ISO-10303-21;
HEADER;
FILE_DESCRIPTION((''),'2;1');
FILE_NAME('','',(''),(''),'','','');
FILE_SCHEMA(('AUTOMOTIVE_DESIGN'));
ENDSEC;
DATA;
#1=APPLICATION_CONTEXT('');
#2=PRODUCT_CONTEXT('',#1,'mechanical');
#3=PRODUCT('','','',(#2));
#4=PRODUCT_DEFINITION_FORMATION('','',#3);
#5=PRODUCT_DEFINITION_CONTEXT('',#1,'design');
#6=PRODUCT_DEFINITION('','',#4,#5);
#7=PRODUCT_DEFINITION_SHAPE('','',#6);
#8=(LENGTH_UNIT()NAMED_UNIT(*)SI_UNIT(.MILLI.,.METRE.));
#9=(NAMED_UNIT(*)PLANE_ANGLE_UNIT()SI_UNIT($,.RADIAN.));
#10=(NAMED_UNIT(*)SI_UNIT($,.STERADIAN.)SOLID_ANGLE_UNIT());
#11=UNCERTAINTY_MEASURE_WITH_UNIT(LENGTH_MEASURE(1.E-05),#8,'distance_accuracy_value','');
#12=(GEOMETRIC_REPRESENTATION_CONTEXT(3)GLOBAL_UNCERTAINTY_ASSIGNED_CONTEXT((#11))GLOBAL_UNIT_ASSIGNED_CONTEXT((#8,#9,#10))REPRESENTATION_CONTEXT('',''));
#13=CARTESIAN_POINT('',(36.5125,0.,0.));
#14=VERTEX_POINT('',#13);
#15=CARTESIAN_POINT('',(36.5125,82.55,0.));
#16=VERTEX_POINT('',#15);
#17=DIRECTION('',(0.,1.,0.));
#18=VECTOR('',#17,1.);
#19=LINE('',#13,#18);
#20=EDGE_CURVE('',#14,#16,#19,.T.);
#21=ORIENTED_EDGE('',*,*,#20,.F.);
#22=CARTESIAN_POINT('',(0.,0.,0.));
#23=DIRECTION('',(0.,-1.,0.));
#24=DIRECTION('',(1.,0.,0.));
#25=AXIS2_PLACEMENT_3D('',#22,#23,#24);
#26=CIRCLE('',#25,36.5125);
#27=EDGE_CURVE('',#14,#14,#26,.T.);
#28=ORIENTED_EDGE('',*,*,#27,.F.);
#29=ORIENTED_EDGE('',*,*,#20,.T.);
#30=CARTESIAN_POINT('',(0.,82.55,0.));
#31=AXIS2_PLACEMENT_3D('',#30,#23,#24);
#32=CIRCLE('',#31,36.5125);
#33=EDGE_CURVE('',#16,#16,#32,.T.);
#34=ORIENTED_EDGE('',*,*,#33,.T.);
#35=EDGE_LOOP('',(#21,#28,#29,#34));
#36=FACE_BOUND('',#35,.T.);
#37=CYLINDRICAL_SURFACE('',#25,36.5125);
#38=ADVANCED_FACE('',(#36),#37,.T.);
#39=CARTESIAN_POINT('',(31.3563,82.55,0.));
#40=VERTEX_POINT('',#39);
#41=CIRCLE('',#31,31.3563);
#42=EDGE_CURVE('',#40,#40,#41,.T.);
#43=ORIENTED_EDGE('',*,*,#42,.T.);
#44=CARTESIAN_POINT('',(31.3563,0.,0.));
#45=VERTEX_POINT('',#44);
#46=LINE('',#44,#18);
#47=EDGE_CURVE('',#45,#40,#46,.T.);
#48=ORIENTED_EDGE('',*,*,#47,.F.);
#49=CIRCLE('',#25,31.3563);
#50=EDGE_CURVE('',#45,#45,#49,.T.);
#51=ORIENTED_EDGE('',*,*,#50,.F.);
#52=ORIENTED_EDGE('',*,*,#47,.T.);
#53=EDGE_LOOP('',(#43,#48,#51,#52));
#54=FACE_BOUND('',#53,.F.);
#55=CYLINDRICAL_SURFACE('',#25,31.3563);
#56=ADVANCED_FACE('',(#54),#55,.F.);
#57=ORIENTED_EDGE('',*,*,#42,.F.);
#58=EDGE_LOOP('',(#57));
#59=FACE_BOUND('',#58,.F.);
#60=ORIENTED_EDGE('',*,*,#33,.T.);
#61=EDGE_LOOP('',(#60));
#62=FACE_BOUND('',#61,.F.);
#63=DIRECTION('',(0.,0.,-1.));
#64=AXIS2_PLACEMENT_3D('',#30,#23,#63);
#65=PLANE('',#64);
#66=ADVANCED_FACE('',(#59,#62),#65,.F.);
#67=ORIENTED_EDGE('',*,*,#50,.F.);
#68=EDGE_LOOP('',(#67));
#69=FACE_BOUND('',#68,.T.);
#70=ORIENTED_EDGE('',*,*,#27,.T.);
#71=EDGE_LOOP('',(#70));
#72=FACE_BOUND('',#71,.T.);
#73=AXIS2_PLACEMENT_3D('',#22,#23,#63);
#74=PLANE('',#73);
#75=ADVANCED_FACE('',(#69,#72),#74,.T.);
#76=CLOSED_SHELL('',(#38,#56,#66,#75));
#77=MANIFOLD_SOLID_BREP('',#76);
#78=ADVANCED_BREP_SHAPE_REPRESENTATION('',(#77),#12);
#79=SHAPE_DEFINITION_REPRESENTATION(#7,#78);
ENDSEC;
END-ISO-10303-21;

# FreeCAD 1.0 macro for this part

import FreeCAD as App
import Part
import Sketcher

V = App.Vector
Q = App.Units.Quantity

doc = App.newDocument("Part")
body = doc.addObject("PartDesign::Body", "Body")

# Sketch on XZ plane
sketch1 = body.newObject("Sketcher::SketchObject", "Sketch")
sketch1.AttachmentSupport = (doc.getObject("XZ_Plane"), [""])
sketch1.MapMode = "FlatFace"
sketch1.addGeometry([
    Part.Circle(V(0, 0, 0), V(0, 0, 1), 37),
    Part.Circle(V(0, 0, 0), V(0, 0, 1), 31),
], False)
sketch1.addConstraint([
    Sketcher.Constraint("Coincident", 0, 3, -1, 1),
    Sketcher.Constraint("Coincident", 1, 3, -1, 1),
    Sketcher.Constraint("Diameter", 0, Q("2.875 in")),
    Sketcher.Constraint("Diameter", 1, Q("2.469 in")),
])
pad1 = body.newObject("PartDesign::Pad", "Pad")
pad1.Profile = sketch1
pad1.Length = Q("3.25 in")
pad1.Reversed = True

doc.recompute()
